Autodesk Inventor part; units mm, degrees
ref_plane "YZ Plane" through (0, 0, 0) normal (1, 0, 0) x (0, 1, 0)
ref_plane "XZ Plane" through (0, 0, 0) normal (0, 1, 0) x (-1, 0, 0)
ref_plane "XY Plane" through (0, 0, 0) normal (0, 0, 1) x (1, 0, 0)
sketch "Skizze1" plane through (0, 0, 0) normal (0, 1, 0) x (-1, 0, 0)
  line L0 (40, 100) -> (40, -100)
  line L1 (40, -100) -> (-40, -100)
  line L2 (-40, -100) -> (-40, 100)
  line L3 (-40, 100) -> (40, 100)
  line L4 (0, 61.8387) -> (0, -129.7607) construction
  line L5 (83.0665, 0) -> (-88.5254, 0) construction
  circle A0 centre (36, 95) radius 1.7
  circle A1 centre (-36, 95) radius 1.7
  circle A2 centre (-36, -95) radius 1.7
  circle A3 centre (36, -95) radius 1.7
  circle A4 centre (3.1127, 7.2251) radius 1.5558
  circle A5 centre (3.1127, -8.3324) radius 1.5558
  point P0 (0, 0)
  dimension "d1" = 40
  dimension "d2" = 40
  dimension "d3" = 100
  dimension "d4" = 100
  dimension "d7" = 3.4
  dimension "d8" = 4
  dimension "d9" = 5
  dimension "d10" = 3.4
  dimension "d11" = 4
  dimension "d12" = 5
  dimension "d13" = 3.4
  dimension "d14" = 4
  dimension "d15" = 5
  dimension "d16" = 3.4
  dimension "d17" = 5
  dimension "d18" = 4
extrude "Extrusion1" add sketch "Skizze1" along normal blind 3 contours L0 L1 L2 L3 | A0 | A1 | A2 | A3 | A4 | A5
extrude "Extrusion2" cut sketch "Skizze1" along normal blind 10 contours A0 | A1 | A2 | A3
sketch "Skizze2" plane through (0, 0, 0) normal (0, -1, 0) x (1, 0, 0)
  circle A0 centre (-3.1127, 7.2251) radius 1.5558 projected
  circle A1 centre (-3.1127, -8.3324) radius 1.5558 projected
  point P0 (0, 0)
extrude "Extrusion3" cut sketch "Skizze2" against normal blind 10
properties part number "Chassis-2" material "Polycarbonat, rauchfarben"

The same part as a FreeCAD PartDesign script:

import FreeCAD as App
import Part
import Sketcher

V = App.Vector
Q = App.Units.Quantity


def add_polygon(sketch, points):
    """Adds a closed chain of lines whose ends are joined by coincident constraints."""
    first, n = sketch.GeometryCount, len(points)
    for a, b in zip(points, points[1:] + points[:1]):
        sketch.addGeometry(Part.LineSegment(App.Vector(*a, 0), App.Vector(*b, 0)), False)
    for i in range(n):
        sketch.addConstraint(Sketcher.Constraint("Coincident", first + i, 2, first + (i + 1) % n, 1))

doc = App.newDocument("Part")
body = doc.addObject("PartDesign::Body", "Body")

sketch1 = body.newObject("Sketcher::SketchObject", "Sketch")
sketch1.AttachmentSupport = (doc.getObject("XZ_Plane"), [""])
sketch1.MapMode = "FlatFace"
add_polygon(sketch1, [(-40, -100), (-40, 100), (40, 100), (40, -100)])
sketch1.addConstraint([
    Sketcher.Constraint("Vertical", 0),
    Sketcher.Constraint("Horizontal", 1),
    Sketcher.Constraint("Vertical", 2),
    Sketcher.Constraint("Horizontal", 3),
    Sketcher.Constraint("Symmetric", 0, 2, 2, 2, -1, 1),
    Sketcher.Constraint("DistanceX", 0, 2, -1, 1, Q("40 mm")),
    Sketcher.Constraint("DistanceY", -1, 1, 0, 2, Q("100 mm")),
])
pad1 = body.newObject("PartDesign::Pad", "Pad")
pad1.Profile = sketch1
pad1.Length = 3
pad1.Reversed = True

sketch2 = body.newObject("Sketcher::SketchObject", "Sketch001")
sketch2.AttachmentSupport = (doc.getObject("XZ_Plane"), [""])
sketch2.MapMode = "FlatFace"
sketch2.addGeometry([
    Part.Circle(V(-36, 95, 0), V(0, 0, 1), 1.7),
    Part.Circle(V(36, 95, 0), V(0, 0, 1), 1.7),
    Part.Circle(V(36, -95, 0), V(0, 0, 1), 1.7),
    Part.Circle(V(-36, -95, 0), V(0, 0, 1), 1.7),
], False)
sketch2.addConstraint([
    Sketcher.Constraint("Equal", 0, 1),
    Sketcher.Constraint("Equal", 1, 2),
    Sketcher.Constraint("Equal", 2, 3),
    Sketcher.Constraint("Symmetric", 0, 3, 2, 3, -1, 1),
    Sketcher.Constraint("Symmetric", 1, 3, 3, 3, -1, 1),
    Sketcher.Constraint("Symmetric", 0, 3, 1, 3, -2),
    Sketcher.Constraint("Diameter", 0, Q("3.4 mm")),
    Sketcher.Constraint("DistanceX", 0, 3, -1, 1, Q("36 mm")),
    Sketcher.Constraint("DistanceY", -1, 1, 0, 3, Q("95 mm")),
])
pocket1 = body.newObject("PartDesign::Pocket", "Pocket")
pocket1.Profile = sketch2
pocket1.Length = 10

sketch3 = body.newObject("Sketcher::SketchObject", "Sketch002")
sketch3.AttachmentSupport = (doc.getObject("XZ_Plane"), [""])
sketch3.MapMode = "FlatFace"
sketch3.addGeometry([
    Part.Circle(V(-3.1, 7.2, 0), V(0, 0, 1), 1.6),
    Part.Circle(V(-3.1, -8.3, 0), V(0, 0, 1), 1.6),
], False)
sketch3.addConstraint([
    Sketcher.Constraint("Equal", 0, 1),
    Sketcher.Constraint("Vertical", 0, 3, 1, 3),
    Sketcher.Constraint("Diameter", 0, Q("3.1116 mm")),
    Sketcher.Constraint("DistanceY", -1, 1, 0, 3, Q("7.225 mm")),
    Sketcher.Constraint("DistanceX", 0, 3, -1, 1, Q("3.1127 mm")),
    Sketcher.Constraint("DistanceY", 1, 3, -1, 1, Q("8.3324 mm")),
])
pocket2 = body.newObject("PartDesign::Pocket", "Pocket001")
pocket2.Profile = sketch3
pocket2.Length = 10

doc.recompute()
